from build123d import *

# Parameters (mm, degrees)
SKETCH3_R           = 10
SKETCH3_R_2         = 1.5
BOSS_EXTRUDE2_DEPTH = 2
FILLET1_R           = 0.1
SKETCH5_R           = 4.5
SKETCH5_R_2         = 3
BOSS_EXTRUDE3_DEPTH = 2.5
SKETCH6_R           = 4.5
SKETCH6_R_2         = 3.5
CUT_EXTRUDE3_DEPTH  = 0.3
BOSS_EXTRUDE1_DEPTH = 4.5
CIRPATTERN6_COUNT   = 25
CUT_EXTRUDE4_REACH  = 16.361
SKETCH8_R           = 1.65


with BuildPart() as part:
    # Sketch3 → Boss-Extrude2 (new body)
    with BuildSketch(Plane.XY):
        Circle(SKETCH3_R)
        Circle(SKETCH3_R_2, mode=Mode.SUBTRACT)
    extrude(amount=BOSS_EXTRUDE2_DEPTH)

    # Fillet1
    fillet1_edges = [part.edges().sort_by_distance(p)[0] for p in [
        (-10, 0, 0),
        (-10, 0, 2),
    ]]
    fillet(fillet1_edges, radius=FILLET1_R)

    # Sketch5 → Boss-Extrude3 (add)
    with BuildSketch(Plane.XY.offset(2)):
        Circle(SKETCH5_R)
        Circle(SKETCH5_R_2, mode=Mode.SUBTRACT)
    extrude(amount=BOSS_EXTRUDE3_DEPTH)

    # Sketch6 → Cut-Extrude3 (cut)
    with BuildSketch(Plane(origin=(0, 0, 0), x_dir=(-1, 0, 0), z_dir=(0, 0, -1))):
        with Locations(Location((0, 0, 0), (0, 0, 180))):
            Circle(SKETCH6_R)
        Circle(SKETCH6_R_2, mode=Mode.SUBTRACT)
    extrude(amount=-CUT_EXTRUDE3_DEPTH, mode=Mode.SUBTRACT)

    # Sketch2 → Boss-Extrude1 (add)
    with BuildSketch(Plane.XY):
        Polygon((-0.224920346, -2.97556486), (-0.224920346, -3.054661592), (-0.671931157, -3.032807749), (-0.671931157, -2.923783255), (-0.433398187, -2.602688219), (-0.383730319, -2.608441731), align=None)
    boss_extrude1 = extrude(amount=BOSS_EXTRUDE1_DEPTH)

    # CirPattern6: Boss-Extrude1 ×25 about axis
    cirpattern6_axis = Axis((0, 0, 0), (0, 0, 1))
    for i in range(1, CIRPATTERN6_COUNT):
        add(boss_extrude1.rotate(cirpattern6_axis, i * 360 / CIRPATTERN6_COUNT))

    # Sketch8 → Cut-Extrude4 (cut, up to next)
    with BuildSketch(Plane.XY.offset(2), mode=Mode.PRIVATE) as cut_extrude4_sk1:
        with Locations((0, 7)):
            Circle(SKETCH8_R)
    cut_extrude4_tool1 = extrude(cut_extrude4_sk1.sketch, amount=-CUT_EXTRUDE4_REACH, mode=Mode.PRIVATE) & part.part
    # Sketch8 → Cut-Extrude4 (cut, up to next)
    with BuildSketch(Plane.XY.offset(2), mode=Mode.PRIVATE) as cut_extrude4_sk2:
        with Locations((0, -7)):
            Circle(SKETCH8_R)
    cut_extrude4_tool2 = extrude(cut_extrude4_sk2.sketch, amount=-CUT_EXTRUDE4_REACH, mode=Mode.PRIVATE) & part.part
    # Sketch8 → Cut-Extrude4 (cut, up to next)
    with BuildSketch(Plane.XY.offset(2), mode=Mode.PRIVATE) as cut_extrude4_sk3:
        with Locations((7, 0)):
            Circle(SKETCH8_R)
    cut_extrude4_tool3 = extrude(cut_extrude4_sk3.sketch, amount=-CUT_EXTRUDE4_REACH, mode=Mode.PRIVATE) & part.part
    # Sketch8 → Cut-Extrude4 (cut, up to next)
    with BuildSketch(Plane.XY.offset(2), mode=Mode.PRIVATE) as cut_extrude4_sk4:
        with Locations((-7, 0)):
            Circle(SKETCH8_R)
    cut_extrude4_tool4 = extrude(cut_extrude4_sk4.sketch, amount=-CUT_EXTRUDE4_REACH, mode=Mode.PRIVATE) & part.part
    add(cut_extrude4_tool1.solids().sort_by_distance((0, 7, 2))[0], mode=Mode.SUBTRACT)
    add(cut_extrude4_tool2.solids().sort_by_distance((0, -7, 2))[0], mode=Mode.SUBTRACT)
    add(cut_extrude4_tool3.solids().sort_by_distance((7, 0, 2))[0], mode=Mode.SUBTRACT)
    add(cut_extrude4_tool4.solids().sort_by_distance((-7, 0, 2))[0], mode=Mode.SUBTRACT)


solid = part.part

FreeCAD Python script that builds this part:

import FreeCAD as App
import Part
import Sketcher

V = App.Vector


def edges_at(feature, points):
    """Names of the edges that pass closest to the given points."""
    edges = feature.Shape.Edges
    near = lambda p: min(range(len(edges)), key=lambda i: edges[i].distToShape(Part.Vertex(*p))[0])
    return sorted({f"Edge{near(p) + 1}" for p in points})

doc = App.newDocument("Part")
body = doc.addObject("PartDesign::Body", "Body")

sketch1 = body.newObject("Sketcher::SketchObject", "Sketch")
sketch1.AttachmentSupport = (doc.getObject("XY_Plane"), [""])
sketch1.MapMode = "FlatFace"
sketch1.addGeometry([
    Part.Circle(V(0, 0, 0), V(0, 0, 1), 10),
    Part.Circle(V(0, 0, 0), V(0, 0, 1), 1.5),
], False)
sketch1.addConstraint([
    Sketcher.Constraint("Coincident", 0, 3, -1, 1),
    Sketcher.Constraint("Coincident", 1, 3, -1, 1),
    Sketcher.Constraint("Diameter", 0, 20.0),
    Sketcher.Constraint("Diameter", 1, 3.0),
])
pad1 = body.newObject("PartDesign::Pad", "Pad")
pad1.Profile = sketch1
pad1.Length = 2
doc.recompute()

fillet = body.newObject("PartDesign::Fillet", "Fillet")
fillet.Base = (pad1, edges_at(pad1, [(-10, 0, 0), (-10, 0, 2)]))
fillet.Radius = 0.1

sketch2 = body.newObject("Sketcher::SketchObject", "Sketch001")
sketch2.AttachmentSupport = (doc.getObject("XY_Plane"), [""])
sketch2.MapMode = "FlatFace"
sketch2.AttachmentOffset = App.Placement(V(0, 0, 2), App.Rotation())
sketch2.addGeometry([
    Part.Circle(V(0, 0, 0), V(0, 0, 1), 4.5),
    Part.Circle(V(0, 0, 0), V(0, 0, 1), 3),
], False)
sketch2.addConstraint([
    Sketcher.Constraint("Coincident", 0, 3, -1, 1),
    Sketcher.Constraint("Coincident", 1, 3, -1, 1),
    Sketcher.Constraint("Diameter", 0, 9.0),
    Sketcher.Constraint("Diameter", 1, 6.0),
])
pad2 = body.newObject("PartDesign::Pad", "Pad001")
pad2.Profile = sketch2
pad2.Length = 2.5

sketch3 = body.newObject("Sketcher::SketchObject", "Sketch002")
sketch3.AttachmentSupport = (doc.getObject("XY_Plane"), [""])
sketch3.MapMode = "FlatFace"
sketch3.addGeometry([
    Part.Circle(V(0, 0, 0), V(0, 0, 1), 4.5),
    Part.Circle(V(0, 0, 0), V(0, 0, 1), 3.5),
], False)
sketch3.addConstraint([
    Sketcher.Constraint("Coincident", 0, 3, -1, 1),
    Sketcher.Constraint("Coincident", 1, 3, -1, 1),
    Sketcher.Constraint("Diameter", 0, 9.0),
    Sketcher.Constraint("Diameter", 1, 7.0),
])
pocket1 = body.newObject("PartDesign::Pocket", "Pocket")
pocket1.Profile = sketch3
pocket1.Length = 0.3
pocket1.Reversed = True

sketch4 = body.newObject("Sketcher::SketchObject", "Sketch003")
sketch4.AttachmentSupport = (doc.getObject("XY_Plane"), [""])
sketch4.MapMode = "FlatFace"
sketch4.addGeometry([
    Part.LineSegment(V(-0.22, -3.05, 0), V(-0.22, -2.98, 0)),
    Part.LineSegment(V(-0.22, -2.98, 0), V(-0.38, -2.61, 0)),
    Part.LineSegment(V(-0.38, -2.61, 0), V(-0.43, -2.6, 0)),
    Part.LineSegment(V(-0.43, -2.6, 0), V(-0.67, -2.92, 0)),
    Part.LineSegment(V(-0.67, -2.92, 0), V(-0.67, -3.03, 0)),
    Part.LineSegment(V(-0.67, -3.03, 0), V(-0.22, -3.05, 0)),
], False)
sketch4.addConstraint([
    Sketcher.Constraint("Coincident", 0, 2, 1, 1),
    Sketcher.Constraint("Coincident", 1, 2, 2, 1),
    Sketcher.Constraint("Coincident", 2, 2, 3, 1),
    Sketcher.Constraint("Coincident", 3, 2, 4, 1),
    Sketcher.Constraint("Coincident", 4, 2, 5, 1),
    Sketcher.Constraint("Coincident", 5, 2, 0, 1),
    Sketcher.Constraint("Vertical", 0),
    Sketcher.Constraint("Vertical", 4),
    Sketcher.Constraint("Equal", 1, 3),
    Sketcher.Constraint("Distance", 1, 0.4),
    Sketcher.Constraint("Distance", 2, 0.05),
    Sketcher.Constraint("DistanceX", 2, 2, -1, 1, 0.433398),
    Sketcher.Constraint("DistanceX", 3, 2, 1, 2, 0.288201),
    Sketcher.Constraint("DistanceY", 0, 1, 0, 2, 0.079097),
    Sketcher.Constraint("DistanceY", 4, 2, 4, 1, 0.109024),
    Sketcher.Constraint("DistanceX", 0, 2, -1, 1, 0.22492),
    Sketcher.Constraint("DistanceX", 1, 2, -1, 1, 0.38373),
    Sketcher.Constraint("DistanceY", 1, 2, -1, 1, 2.608442),
])
pad3 = body.newObject("PartDesign::Pad", "Pad002")
pad3.Profile = sketch4
pad3.Length = 4.5
doc.recompute()

polarpattern = body.newObject("PartDesign::PolarPattern", "PolarPattern")
polarpattern.Originals = [pad3]
polarpattern.Axis = (doc.getObject("Z_Axis"), [""])
polarpattern.Angle = 360
polarpattern.Occurrences = 25
body.Tip = polarpattern

sketch5 = body.newObject("Sketcher::SketchObject", "Sketch004")
sketch5.AttachmentSupport = (doc.getObject("XY_Plane"), [""])
sketch5.MapMode = "FlatFace"
sketch5.AttachmentOffset = App.Placement(V(0, 0, 2), App.Rotation())
sketch5.addGeometry(Part.Circle(V(0, 7, 0), V(0, 0, 1), 1.6), False)
sketch5.addConstraint([
    Sketcher.Constraint("PointOnObject", 0, 3, -2),
    Sketcher.Constraint("Diameter", 0, 3.3),
    Sketcher.Constraint("DistanceY", -1, 1, 0, 3, 7.0),
])
pocket2 = body.newObject("PartDesign::Pocket", "Pocket001")
pocket2.Profile = sketch5
pocket2.Type = "UpToFirst"

sketch6 = body.newObject("Sketcher::SketchObject", "Sketch005")
sketch6.AttachmentSupport = (doc.getObject("XY_Plane"), [""])
sketch6.MapMode = "FlatFace"
sketch6.AttachmentOffset = App.Placement(V(0, 0, 2), App.Rotation())
sketch6.addGeometry(Part.Circle(V(0, -7, 0), V(0, 0, 1), 1.6), False)
sketch6.addConstraint([
    Sketcher.Constraint("PointOnObject", 0, 3, -2),
    Sketcher.Constraint("Diameter", 0, 3.3),
    Sketcher.Constraint("DistanceY", 0, 3, -1, 1, 7.0),
])
pocket3 = body.newObject("PartDesign::Pocket", "Pocket002")
pocket3.Profile = sketch6
pocket3.Type = "UpToFirst"

sketch7 = body.newObject("Sketcher::SketchObject", "Sketch006")
sketch7.AttachmentSupport = (doc.getObject("XY_Plane"), [""])
sketch7.MapMode = "FlatFace"
sketch7.AttachmentOffset = App.Placement(V(0, 0, 2), App.Rotation())
sketch7.addGeometry(Part.Circle(V(7, 0, 0), V(0, 0, 1), 1.6), False)
sketch7.addConstraint([
    Sketcher.Constraint("PointOnObject", 0, 3, -1),
    Sketcher.Constraint("Diameter", 0, 3.3),
    Sketcher.Constraint("DistanceX", -1, 1, 0, 3, 7.0),
])
pocket4 = body.newObject("PartDesign::Pocket", "Pocket003")
pocket4.Profile = sketch7
pocket4.Type = "UpToFirst"

sketch8 = body.newObject("Sketcher::SketchObject", "Sketch007")
sketch8.AttachmentSupport = (doc.getObject("XY_Plane"), [""])
sketch8.MapMode = "FlatFace"
sketch8.AttachmentOffset = App.Placement(V(0, 0, 2), App.Rotation())
sketch8.addGeometry(Part.Circle(V(-7, 0, 0), V(0, 0, 1), 1.6), False)
sketch8.addConstraint([
    Sketcher.Constraint("PointOnObject", 0, 3, -1),
    Sketcher.Constraint("Diameter", 0, 3.3),
    Sketcher.Constraint("DistanceX", 0, 3, -1, 1, 7.0),
])
pocket5 = body.newObject("PartDesign::Pocket", "Pocket004")
pocket5.Profile = sketch8
pocket5.Type = "UpToFirst"

doc.recompute()
